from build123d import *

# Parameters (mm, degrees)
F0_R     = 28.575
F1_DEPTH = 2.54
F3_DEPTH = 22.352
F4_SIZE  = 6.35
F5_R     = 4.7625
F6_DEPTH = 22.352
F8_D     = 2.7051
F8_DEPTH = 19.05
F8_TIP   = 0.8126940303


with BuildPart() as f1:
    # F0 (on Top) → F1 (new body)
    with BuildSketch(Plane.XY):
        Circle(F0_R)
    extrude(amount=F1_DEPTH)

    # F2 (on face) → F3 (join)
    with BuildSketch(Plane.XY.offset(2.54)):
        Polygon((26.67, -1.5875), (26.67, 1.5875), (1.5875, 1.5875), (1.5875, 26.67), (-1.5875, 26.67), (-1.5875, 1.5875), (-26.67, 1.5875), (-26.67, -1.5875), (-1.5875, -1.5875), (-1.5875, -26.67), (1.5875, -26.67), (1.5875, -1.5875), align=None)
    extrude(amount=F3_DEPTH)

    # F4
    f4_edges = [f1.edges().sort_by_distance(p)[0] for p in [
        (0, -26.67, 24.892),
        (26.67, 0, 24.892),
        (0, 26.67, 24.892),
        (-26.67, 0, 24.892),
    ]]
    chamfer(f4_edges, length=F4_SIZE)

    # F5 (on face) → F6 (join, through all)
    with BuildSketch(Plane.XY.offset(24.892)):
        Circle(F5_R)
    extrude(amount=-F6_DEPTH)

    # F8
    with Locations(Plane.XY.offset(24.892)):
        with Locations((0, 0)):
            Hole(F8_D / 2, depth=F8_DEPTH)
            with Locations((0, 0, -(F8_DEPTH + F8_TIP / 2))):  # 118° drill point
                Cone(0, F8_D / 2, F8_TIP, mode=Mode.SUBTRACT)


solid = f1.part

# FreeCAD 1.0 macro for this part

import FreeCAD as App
import Part
import Sketcher

V = App.Vector
Q = App.Units.Quantity


def edges_at(feature, points):
    """Names of the edges that pass closest to the given points."""
    edges = feature.Shape.Edges
    near = lambda p: min(range(len(edges)), key=lambda i: edges[i].distToShape(Part.Vertex(*p))[0])
    return sorted({f"Edge{near(p) + 1}" for p in points})


def add_polygon(sketch, points):
    """Adds a closed chain of lines whose ends are joined by coincident constraints."""
    first, n = sketch.GeometryCount, len(points)
    for a, b in zip(points, points[1:] + points[:1]):
        sketch.addGeometry(Part.LineSegment(App.Vector(*a, 0), App.Vector(*b, 0)), False)
    for i in range(n):
        sketch.addConstraint(Sketcher.Constraint("Coincident", first + i, 2, first + (i + 1) % n, 1))

doc = App.newDocument("Part")
params = doc.addObject("Spreadsheet::Sheet", "Params")
for row, (alias, value) in enumerate([
    ("sketch1_diameter", "2.25 in"),
    ("pad1_length", "0.1 in"),
    ("sketch2_width", "0.125 in"),
    ("pad2_length", "0.88 in"),
    ("chamfer_size", "0.25 in"),
    ("sketch3_diameter", "0.375 in"),
    ("hole_diameter", "0.1065 in"),
    ("hole_depth", "0.75 in"),
], start=1):
    params.set(f"A{row}", alias)
    params.set(f"B{row}", "=" + value)
    params.setAlias(f"B{row}", alias)

body = doc.addObject("PartDesign::Body", "Body")

# Sketch on XY plane
sketch1 = doc.addObject("Sketcher::SketchObject", "Sketch")
body.addObject(sketch1)
sketch1.AttachmentSupport = (doc.XY_Plane, [""])
sketch1.MapMode = "FlatFace"
sketch1.addGeometry(Part.Circle(V(0, 0, 0), V(0, 0, 1), 29), False)
sketch1.addConstraint(Sketcher.Constraint("Coincident", 0, 3, -1, 1))
sketch1.addConstraint(Sketcher.Constraint("Diameter", 0, Q("2.25 in")))
sketch1.setExpression("Constraints[1]", "Params.sketch1_diameter")
pad1 = doc.addObject("PartDesign::Pad", "Pad")
body.addObject(pad1)
pad1.Profile = sketch1
pad1.setExpression("Length", "Params.pad1_length")

# Sketch on XY plane
sketch2 = doc.addObject("Sketcher::SketchObject", "Sketch001")
body.addObject(sketch2)
sketch2.AttachmentSupport = (doc.XY_Plane, [""])
sketch2.MapMode = "FlatFace"
sketch2.AttachmentOffset = App.Placement(V(0, 0, 0.1 * 25.4), App.Rotation())
add_polygon(sketch2, [(26.7, -1.6), (26.7, 1.6), (1.6, 1.6), (1.6, 26.7), (-1.6, 26.7), (-1.6, 1.6), (-26.7, 1.6), (-26.7, -1.6), (-1.6, -1.6), (-1.6, -26.7), (1.6, -26.7), (1.6, -1.6)])  # lines 0-11
sketch2.addConstraint(Sketcher.Constraint("Vertical", 0))
sketch2.addConstraint(Sketcher.Constraint("Horizontal", 1))
sketch2.addConstraint(Sketcher.Constraint("Vertical", 2))
sketch2.addConstraint(Sketcher.Constraint("Horizontal", 3))
sketch2.addConstraint(Sketcher.Constraint("Vertical", 4))
sketch2.addConstraint(Sketcher.Constraint("Horizontal", 5))
sketch2.addConstraint(Sketcher.Constraint("Vertical", 6))
sketch2.addConstraint(Sketcher.Constraint("Horizontal", 7))
sketch2.addConstraint(Sketcher.Constraint("Vertical", 8))
sketch2.addConstraint(Sketcher.Constraint("Horizontal", 9))
sketch2.addConstraint(Sketcher.Constraint("Vertical", 10))
sketch2.addConstraint(Sketcher.Constraint("Horizontal", 11))
sketch2.addConstraint(Sketcher.Constraint("Symmetric", 0, 2, 6, 2, -1, 1))
sketch2.addConstraint(Sketcher.Constraint("Symmetric", 2, 2, 8, 2, -1, 1))
sketch2.addConstraint(Sketcher.Constraint("Symmetric", 4, 2, 10, 2, -1, 1))
sketch2.addConstraint(Sketcher.Constraint("Symmetric", 1, 2, 4, 2, -2))
sketch2.addConstraint(Sketcher.Constraint("Equal", 9, 0))
sketch2.addConstraint(Sketcher.Constraint("Equal", 11, 2))
sketch2.addConstraint(Sketcher.Constraint("DistanceX", 5, 2, 0, 2, Q("2.1 in")))
sketch2.addConstraint(Sketcher.Constraint("DistanceX", 3, 2, 3, 1, Q("0.125 in")))
sketch2.setExpression("Constraints[31]", "Params.sketch2_width")
pad2 = doc.addObject("PartDesign::Pad", "Pad001")
body.addObject(pad2)
pad2.Profile = sketch2
pad2.setExpression("Length", "Params.pad2_length")
doc.recompute()

chamfer = doc.addObject("PartDesign::Chamfer", "Chamfer")
body.addObject(chamfer)
chamfer.Base = (pad2, edges_at(pad2, [
    (0, -26.67, 24.892),
    (26.67, 0, 24.892),
    (0, 26.67, 24.892),
    (-26.67, 0, 24.892),
]))
chamfer.setExpression("Size", "Params.chamfer_size")

# Sketch on XY plane
sketch3 = doc.addObject("Sketcher::SketchObject", "Sketch002")
body.addObject(sketch3)
sketch3.AttachmentSupport = (doc.XY_Plane, [""])
sketch3.MapMode = "FlatFace"
sketch3.AttachmentOffset = App.Placement(V(0, 0, 0.98 * 25.4), App.Rotation())
sketch3.addGeometry(Part.Circle(V(0, 0, 0), V(0, 0, 1), 4.8), False)
sketch3.addConstraint(Sketcher.Constraint("Coincident", 0, 3, -1, 1))
sketch3.addConstraint(Sketcher.Constraint("Diameter", 0, Q("0.375 in")))
sketch3.setExpression("Constraints[1]", "Params.sketch3_diameter")
pad3 = doc.addObject("PartDesign::Pad", "Pad002")
body.addObject(pad3)
pad3.Profile = sketch3
pad3.Type = "UpToLast"
pad3.Reversed = True

# Sketch on XY plane
sketch4 = doc.addObject("Sketcher::SketchObject", "Sketch003")
body.addObject(sketch4)
sketch4.AttachmentSupport = (doc.XY_Plane, [""])
sketch4.MapMode = "FlatFace"
sketch4.AttachmentOffset = App.Placement(V(0, 0, 0.98 * 25.4), App.Rotation())
sketch4.addGeometry(Part.Circle(V(0, 0, 0), V(0, 0, 1), 1.4), False)
sketch4.addConstraint(Sketcher.Constraint("Coincident", 0, 3, -1, 1))
sketch4.addConstraint(Sketcher.Constraint("Diameter", 0, Q("0.1065 in")))
doc.recompute()
hole = doc.addObject("PartDesign::Hole", "Hole")
body.addObject(hole)
hole.Profile = sketch4
hole.ThreadType = "None"
hole.setExpression("Diameter", "Params.hole_diameter")
hole.DepthType = "Dimension"
hole.setExpression("Depth", "Params.hole_depth")
hole.DrillPoint = "Angled"
hole.DrillPointAngle = 118

doc.recompute()
